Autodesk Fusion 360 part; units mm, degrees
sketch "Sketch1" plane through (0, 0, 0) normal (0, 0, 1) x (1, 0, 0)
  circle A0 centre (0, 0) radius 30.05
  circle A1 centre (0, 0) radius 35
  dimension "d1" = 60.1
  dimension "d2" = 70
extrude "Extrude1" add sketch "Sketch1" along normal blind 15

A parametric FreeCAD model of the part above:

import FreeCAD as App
import Part
import Sketcher
from FreeCAD import Vector

doc = App.newDocument("Part")
body = doc.addObject("PartDesign::Body", "Body")

# Sketch on XY plane
sketch1 = doc.addObject("Sketcher::SketchObject", "Sketch")
body.addObject(sketch1)
sketch1.AttachmentSupport = (doc.XY_Plane, [""])
sketch1.MapMode = "FlatFace"
sketch1.addGeometry(Part.Circle(Vector(0, 0, 0), Vector(0, 0, 1), 35), False)
sketch1.addGeometry(Part.Circle(Vector(0, 0, 0), Vector(0, 0, 1), 30), False)
sketch1.addConstraint(Sketcher.Constraint("Coincident", 0, 3, -1, 1))
sketch1.addConstraint(Sketcher.Constraint("Coincident", 1, 3, -1, 1))
sketch1.addConstraint(Sketcher.Constraint("Diameter", 0, 70.0))
sketch1.addConstraint(Sketcher.Constraint("Diameter", 1, 60.1))
pad1 = doc.addObject("PartDesign::Pad", "Pad")
body.addObject(pad1)
pad1.Profile = sketch1
pad1.Length = 15

doc.recompute()
